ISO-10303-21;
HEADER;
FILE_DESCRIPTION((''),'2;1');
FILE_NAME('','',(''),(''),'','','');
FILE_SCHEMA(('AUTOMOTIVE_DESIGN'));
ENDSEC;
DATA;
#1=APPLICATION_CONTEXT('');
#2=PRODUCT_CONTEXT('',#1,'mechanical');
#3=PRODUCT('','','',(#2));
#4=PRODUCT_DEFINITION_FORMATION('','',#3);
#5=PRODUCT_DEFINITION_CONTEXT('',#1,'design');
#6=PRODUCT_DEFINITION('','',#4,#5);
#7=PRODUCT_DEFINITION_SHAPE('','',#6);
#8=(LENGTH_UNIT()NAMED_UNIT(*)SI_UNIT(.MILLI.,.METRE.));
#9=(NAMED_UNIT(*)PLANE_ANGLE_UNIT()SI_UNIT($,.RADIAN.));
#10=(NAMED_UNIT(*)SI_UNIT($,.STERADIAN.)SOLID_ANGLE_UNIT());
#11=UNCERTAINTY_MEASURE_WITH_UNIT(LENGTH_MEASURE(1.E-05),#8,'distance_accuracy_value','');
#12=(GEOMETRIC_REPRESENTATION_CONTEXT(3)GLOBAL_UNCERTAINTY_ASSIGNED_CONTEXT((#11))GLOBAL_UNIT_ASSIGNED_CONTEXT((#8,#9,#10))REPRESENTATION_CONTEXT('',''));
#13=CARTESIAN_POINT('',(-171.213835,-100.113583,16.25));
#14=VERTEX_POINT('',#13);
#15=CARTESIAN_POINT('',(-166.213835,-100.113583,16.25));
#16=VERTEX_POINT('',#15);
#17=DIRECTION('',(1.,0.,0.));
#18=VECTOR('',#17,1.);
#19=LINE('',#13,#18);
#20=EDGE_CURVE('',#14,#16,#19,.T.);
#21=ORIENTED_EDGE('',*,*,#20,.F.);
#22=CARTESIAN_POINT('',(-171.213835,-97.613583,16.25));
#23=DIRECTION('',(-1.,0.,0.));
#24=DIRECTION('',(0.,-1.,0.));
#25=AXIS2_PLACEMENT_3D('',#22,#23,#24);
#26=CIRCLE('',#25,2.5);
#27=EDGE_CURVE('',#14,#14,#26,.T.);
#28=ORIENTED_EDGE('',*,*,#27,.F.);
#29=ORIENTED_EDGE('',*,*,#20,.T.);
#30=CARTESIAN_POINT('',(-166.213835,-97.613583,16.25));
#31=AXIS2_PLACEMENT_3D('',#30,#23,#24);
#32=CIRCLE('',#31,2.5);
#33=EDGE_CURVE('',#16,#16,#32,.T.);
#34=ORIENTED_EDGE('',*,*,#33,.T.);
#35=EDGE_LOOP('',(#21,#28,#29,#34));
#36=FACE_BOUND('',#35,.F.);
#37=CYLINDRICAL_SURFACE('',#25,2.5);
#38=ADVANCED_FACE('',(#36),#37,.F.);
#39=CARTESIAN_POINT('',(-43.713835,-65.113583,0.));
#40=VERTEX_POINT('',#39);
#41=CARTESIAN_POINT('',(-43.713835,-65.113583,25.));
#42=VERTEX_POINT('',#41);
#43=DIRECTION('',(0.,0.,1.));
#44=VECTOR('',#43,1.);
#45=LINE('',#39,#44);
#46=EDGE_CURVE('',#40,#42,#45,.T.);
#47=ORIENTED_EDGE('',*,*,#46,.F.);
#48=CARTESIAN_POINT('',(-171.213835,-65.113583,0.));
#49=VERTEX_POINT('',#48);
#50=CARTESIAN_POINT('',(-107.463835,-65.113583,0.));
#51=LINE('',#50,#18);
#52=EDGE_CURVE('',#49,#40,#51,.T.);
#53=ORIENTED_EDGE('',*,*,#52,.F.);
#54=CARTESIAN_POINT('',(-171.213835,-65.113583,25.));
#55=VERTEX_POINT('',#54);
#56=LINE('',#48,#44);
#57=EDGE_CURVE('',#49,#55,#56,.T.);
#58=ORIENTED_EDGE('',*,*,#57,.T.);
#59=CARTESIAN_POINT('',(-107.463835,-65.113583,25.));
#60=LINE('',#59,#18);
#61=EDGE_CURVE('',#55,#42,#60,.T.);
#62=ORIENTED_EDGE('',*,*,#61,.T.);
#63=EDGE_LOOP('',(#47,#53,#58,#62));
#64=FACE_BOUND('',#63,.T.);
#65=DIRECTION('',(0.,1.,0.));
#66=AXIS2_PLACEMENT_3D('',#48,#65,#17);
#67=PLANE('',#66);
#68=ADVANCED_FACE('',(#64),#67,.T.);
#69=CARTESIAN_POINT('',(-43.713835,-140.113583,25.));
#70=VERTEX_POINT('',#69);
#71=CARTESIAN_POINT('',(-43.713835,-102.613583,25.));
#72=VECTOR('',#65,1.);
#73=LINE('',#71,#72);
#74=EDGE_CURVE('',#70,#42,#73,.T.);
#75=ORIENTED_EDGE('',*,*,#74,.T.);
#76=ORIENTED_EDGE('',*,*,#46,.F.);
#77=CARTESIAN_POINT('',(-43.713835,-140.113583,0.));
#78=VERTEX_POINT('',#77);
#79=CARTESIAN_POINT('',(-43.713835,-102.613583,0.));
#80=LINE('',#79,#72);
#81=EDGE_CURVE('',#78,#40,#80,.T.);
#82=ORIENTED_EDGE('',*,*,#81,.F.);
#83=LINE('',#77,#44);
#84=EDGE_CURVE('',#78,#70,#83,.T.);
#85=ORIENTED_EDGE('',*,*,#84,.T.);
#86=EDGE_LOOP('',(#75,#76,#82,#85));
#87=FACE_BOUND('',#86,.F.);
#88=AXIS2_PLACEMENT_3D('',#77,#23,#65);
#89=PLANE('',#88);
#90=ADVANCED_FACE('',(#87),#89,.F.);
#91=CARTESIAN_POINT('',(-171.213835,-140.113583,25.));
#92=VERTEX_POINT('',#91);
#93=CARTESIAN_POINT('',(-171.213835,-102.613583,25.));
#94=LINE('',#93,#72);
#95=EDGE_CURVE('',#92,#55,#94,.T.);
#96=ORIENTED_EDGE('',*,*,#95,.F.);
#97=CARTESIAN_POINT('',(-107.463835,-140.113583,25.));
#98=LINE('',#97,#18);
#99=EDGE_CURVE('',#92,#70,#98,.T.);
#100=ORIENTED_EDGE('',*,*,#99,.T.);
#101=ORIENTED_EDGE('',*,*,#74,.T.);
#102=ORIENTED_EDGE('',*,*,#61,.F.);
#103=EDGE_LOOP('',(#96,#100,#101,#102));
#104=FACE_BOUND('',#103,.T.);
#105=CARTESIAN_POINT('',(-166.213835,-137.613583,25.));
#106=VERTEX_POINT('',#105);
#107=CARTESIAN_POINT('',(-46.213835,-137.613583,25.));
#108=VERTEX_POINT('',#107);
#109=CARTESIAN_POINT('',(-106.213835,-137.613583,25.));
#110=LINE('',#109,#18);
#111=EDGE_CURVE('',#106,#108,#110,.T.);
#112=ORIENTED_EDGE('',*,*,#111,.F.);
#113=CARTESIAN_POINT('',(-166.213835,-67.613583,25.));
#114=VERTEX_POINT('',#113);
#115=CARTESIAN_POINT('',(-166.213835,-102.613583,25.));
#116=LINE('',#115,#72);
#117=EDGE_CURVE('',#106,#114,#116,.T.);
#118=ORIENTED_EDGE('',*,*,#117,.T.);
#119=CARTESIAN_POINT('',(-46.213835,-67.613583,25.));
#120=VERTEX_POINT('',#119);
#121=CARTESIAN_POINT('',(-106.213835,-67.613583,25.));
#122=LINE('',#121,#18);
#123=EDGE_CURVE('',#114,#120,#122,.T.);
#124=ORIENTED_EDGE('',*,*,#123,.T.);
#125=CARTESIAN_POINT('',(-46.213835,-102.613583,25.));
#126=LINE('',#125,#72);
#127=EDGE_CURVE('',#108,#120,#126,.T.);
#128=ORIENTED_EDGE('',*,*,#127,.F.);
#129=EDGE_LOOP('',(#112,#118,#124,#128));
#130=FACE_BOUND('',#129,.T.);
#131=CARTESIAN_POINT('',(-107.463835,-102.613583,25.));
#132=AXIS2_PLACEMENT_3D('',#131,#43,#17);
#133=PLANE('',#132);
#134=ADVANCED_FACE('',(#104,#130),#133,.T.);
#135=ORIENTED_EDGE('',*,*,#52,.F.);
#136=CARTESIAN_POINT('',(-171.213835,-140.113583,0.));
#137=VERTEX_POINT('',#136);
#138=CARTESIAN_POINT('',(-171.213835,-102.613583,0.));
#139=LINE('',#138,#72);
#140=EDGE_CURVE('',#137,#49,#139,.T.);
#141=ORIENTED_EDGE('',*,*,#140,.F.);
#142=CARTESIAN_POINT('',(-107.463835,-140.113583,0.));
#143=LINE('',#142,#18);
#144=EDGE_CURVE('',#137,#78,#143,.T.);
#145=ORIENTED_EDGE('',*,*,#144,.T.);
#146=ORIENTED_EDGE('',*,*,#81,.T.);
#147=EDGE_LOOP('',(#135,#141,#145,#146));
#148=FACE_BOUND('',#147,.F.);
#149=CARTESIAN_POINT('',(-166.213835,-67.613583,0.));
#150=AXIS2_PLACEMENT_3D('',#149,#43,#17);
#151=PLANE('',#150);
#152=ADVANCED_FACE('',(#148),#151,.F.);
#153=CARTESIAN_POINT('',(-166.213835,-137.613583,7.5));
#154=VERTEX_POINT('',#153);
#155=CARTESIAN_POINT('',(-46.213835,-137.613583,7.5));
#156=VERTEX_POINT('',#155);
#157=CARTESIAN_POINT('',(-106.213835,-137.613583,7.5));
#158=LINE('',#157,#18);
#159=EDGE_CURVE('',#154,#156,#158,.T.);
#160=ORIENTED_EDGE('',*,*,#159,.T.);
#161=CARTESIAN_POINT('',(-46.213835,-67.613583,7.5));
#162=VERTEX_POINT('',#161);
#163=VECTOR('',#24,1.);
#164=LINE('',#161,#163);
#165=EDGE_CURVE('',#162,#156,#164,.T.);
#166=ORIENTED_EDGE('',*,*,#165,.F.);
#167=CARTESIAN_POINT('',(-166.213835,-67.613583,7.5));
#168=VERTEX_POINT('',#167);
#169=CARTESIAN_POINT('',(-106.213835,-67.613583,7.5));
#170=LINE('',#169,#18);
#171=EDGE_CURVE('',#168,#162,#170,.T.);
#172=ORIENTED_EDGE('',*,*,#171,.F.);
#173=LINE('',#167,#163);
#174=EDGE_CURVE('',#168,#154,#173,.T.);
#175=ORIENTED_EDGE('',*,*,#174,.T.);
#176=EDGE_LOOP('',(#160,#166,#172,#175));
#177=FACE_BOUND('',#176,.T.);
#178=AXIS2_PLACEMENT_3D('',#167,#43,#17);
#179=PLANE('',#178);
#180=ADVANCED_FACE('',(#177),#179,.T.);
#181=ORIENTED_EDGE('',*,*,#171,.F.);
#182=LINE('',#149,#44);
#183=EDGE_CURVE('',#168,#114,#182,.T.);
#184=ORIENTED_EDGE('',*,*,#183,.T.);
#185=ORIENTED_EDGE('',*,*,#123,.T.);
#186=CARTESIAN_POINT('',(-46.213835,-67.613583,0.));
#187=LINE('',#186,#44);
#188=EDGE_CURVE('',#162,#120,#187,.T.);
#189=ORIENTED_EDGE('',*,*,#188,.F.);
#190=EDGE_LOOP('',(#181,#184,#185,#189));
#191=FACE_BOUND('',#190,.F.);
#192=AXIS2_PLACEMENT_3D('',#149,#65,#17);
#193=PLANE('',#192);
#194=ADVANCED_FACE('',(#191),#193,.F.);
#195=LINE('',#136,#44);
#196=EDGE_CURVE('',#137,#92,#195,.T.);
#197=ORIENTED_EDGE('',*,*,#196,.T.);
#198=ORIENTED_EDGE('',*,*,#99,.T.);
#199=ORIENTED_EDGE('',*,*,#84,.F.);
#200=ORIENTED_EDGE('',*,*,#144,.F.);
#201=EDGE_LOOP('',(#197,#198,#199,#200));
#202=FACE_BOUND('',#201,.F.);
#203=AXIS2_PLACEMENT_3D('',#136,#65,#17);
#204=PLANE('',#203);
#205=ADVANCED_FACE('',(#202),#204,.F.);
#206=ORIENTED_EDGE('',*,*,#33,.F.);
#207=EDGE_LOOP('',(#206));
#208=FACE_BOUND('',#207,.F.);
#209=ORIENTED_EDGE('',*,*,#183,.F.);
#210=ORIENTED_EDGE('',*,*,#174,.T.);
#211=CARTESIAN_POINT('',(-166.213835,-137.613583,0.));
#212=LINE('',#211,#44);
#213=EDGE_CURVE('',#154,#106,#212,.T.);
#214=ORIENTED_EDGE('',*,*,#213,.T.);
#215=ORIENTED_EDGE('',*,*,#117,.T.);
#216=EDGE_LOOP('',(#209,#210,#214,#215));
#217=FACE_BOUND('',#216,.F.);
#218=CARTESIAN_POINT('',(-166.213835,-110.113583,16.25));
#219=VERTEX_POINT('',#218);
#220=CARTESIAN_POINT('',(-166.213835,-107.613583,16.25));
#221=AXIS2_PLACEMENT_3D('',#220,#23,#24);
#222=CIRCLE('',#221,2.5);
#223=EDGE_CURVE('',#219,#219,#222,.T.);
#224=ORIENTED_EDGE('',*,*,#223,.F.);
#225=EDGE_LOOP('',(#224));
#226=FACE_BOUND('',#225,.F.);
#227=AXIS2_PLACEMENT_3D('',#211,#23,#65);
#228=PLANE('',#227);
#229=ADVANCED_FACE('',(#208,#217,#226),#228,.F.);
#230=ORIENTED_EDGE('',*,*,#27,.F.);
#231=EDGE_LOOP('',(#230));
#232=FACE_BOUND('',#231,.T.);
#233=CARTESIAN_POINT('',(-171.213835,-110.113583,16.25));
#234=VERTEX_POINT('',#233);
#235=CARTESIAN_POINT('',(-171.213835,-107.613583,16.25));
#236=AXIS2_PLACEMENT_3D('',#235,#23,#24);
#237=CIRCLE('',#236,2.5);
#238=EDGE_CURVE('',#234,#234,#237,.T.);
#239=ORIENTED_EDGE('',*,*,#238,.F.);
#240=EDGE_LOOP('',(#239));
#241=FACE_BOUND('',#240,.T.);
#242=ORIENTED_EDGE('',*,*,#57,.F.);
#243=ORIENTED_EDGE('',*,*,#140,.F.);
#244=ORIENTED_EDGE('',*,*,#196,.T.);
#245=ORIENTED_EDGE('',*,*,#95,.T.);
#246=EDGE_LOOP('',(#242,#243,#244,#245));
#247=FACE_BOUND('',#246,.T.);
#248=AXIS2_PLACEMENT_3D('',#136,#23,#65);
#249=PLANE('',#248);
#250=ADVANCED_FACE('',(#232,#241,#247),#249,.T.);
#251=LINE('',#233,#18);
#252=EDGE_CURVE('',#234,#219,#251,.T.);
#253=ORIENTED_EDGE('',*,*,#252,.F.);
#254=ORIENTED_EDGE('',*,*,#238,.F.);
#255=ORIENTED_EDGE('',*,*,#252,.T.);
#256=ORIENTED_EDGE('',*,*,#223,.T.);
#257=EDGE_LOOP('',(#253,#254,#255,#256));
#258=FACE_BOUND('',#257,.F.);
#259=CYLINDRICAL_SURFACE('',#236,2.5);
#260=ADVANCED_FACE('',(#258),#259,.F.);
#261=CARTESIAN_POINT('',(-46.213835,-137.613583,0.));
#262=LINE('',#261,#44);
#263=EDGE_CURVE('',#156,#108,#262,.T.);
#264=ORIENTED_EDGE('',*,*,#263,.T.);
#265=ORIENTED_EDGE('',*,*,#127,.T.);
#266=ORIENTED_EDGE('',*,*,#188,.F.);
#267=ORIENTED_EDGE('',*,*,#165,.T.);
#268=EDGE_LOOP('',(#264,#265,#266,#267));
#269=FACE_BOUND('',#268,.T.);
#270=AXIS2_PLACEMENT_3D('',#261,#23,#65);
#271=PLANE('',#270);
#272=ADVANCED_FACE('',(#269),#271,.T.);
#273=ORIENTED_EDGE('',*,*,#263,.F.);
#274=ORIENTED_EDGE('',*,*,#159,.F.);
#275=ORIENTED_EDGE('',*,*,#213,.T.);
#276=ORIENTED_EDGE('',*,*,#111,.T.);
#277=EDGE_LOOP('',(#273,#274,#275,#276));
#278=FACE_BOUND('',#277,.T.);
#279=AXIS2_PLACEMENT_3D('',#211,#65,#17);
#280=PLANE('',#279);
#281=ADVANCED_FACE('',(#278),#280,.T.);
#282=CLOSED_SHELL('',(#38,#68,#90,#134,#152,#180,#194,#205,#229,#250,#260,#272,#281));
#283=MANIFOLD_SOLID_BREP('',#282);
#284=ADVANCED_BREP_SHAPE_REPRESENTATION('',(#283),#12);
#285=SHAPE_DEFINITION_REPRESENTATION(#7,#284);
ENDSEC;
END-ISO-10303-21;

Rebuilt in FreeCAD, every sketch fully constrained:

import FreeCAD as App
import Part
import Sketcher
Q = App.Units.Quantity


def add_polygon(sketch, points):
    """Adds a closed chain of lines whose ends are joined by coincident constraints."""
    first, n = sketch.GeometryCount, len(points)
    for a, b in zip(points, points[1:] + points[:1]):
        sketch.addGeometry(Part.LineSegment(App.Vector(*a, 0), App.Vector(*b, 0)), False)
    for i in range(n):
        sketch.addConstraint(Sketcher.Constraint("Coincident", first + i, 2, first + (i + 1) % n, 1))

doc = App.newDocument("Part")
params = doc.addObject("Spreadsheet::Sheet", "Params")
for row, (alias, value) in enumerate([
    ("sketch1_width", "120 mm"),
    ("sketch1_height", "75 mm"),
    ("sketch1_height2", "70 mm"),
    ("sketch1_width2", "127.5 mm"),
    ("pad1_length", "25 mm"),
    ("sketch2_width", "120 mm"),
    ("sketch2_height", "7.5 mm"),
    ("pad2_length", "70 mm"),
    ("sketch3_diameter", "5 mm"),
    ("pocket1_length", "25 mm"),
], start=1):
    params.set(f"A{row}", alias)
    params.set(f"B{row}", "=" + value)
    params.setAlias(f"B{row}", alias)

body = doc.addObject("PartDesign::Body", "Body")

# Sketch on XY plane
sketch1 = doc.addObject("Sketcher::SketchObject", "Sketch")
body.addObject(sketch1)
sketch1.AttachmentSupport = (doc.XY_Plane, [""])
sketch1.MapMode = "FlatFace"
add_polygon(sketch1, [(-171, -65), (-171, -140), (-44, -140), (-44, -65)])  # lines 0-3
add_polygon(sketch1, [(-46, -138), (-166, -138), (-166, -68), (-46, -68)])  # lines 4-7
sketch1.addConstraint(Sketcher.Constraint("Vertical", 0))
sketch1.addConstraint(Sketcher.Constraint("Horizontal", 1))
sketch1.addConstraint(Sketcher.Constraint("Vertical", 2))
sketch1.addConstraint(Sketcher.Constraint("Horizontal", 3))
sketch1.addConstraint(Sketcher.Constraint("Horizontal", 4))
sketch1.addConstraint(Sketcher.Constraint("Vertical", 5))
sketch1.addConstraint(Sketcher.Constraint("Horizontal", 6))
sketch1.addConstraint(Sketcher.Constraint("Vertical", 7))
sketch1.addConstraint(Sketcher.Constraint("DistanceX", 4, 2, 4, 1, Q("120 mm")))
sketch1.addConstraint(Sketcher.Constraint("DistanceY", 0, 2, 0, 1, Q("75 mm")))
sketch1.addConstraint(Sketcher.Constraint("DistanceY", 5, 1, 5, 2, Q("70 mm")))
sketch1.addConstraint(Sketcher.Constraint("DistanceX", 1, 1, 1, 2, Q("127.5 mm")))
sketch1.addConstraint(Sketcher.Constraint("DistanceX", 0, 2, 4, 2, Q("5 mm")))
sketch1.addConstraint(Sketcher.Constraint("DistanceY", 0, 2, 4, 2, Q("2.5 mm")))
sketch1.addConstraint(Sketcher.Constraint("DistanceX", 0, 2, -1, 1, Q("171.213835 mm")))
sketch1.addConstraint(Sketcher.Constraint("DistanceY", 0, 2, -1, 1, Q("140.113583 mm")))
sketch1.setExpression("Constraints[16]", "Params.sketch1_width")
sketch1.setExpression("Constraints[17]", "Params.sketch1_height")
sketch1.setExpression("Constraints[18]", "Params.sketch1_height2")
sketch1.setExpression("Constraints[19]", "Params.sketch1_width2")
pad1 = doc.addObject("PartDesign::Pad", "Pad")
body.addObject(pad1)
pad1.Profile = sketch1
pad1.setExpression("Length", "Params.pad1_length")

# Sketch on XZ plane
sketch2 = doc.addObject("Sketcher::SketchObject", "Sketch001")
body.addObject(sketch2)
sketch2.AttachmentSupport = (doc.XZ_Plane, [""])
sketch2.MapMode = "FlatFace"
sketch2.AttachmentOffset = App.Placement(App.Vector(0, 0, 67.613583), App.Rotation())
add_polygon(sketch2, [(-166, 8), (-166, 0), (-46, 0), (-46, 8)])  # lines 0-3
sketch2.addConstraint(Sketcher.Constraint("Vertical", 0))
sketch2.addConstraint(Sketcher.Constraint("Horizontal", 1))
sketch2.addConstraint(Sketcher.Constraint("Vertical", 2))
sketch2.addConstraint(Sketcher.Constraint("Horizontal", 3))
sketch2.addConstraint(Sketcher.Constraint("PointOnObject", 0, 2, -1))
sketch2.addConstraint(Sketcher.Constraint("DistanceX", 1, 1, 1, 2, Q("120 mm")))
sketch2.addConstraint(Sketcher.Constraint("DistanceY", 0, 2, 0, 1, Q("7.5 mm")))
sketch2.addConstraint(Sketcher.Constraint("DistanceX", 0, 2, -1, 1, Q("166.213835 mm")))
sketch2.setExpression("Constraints[9]", "Params.sketch2_width")
sketch2.setExpression("Constraints[10]", "Params.sketch2_height")
pad2 = doc.addObject("PartDesign::Pad", "Pad001")
body.addObject(pad2)
pad2.Profile = sketch2
pad2.setExpression("Length", "Params.pad2_length")

# Sketch on YZ plane
sketch3 = doc.addObject("Sketcher::SketchObject", "Sketch002")
body.addObject(sketch3)
sketch3.AttachmentSupport = (doc.YZ_Plane, [""])
sketch3.MapMode = "FlatFace"
sketch3.AttachmentOffset = App.Placement(App.Vector(0, 0, -171.213835), App.Rotation())
sketch3.addGeometry(Part.Circle(App.Vector(-97.6, 16.2, 0), App.Vector(0, 0, 1), 2.5), False)
sketch3.addGeometry(Part.Circle(App.Vector(-107.6, 16.2, 0), App.Vector(0, 0, 1), 2.5), False)
sketch3.addConstraint(Sketcher.Constraint("Equal", 0, 1))
sketch3.addConstraint(Sketcher.Constraint("Horizontal", 0, 3, 1, 3))
sketch3.addConstraint(Sketcher.Constraint("Diameter", 0, Q("5 mm")))
sketch3.addConstraint(Sketcher.Constraint("DistanceX", 1, 3, 0, 3, Q("10 mm")))
sketch3.addConstraint(Sketcher.Constraint("DistanceY", -1, 1, 0, 3, Q("16.25 mm")))
sketch3.addConstraint(Sketcher.Constraint("DistanceX", 0, 3, -1, 1, Q("97.613583 mm")))
sketch3.setExpression("Constraints[2]", "Params.sketch3_diameter")
pocket1 = doc.addObject("PartDesign::Pocket", "Pocket")
body.addObject(pocket1)
pocket1.Profile = sketch3
pocket1.setExpression("Length", "Params.pocket1_length")
pocket1.Reversed = True

doc.recompute()
